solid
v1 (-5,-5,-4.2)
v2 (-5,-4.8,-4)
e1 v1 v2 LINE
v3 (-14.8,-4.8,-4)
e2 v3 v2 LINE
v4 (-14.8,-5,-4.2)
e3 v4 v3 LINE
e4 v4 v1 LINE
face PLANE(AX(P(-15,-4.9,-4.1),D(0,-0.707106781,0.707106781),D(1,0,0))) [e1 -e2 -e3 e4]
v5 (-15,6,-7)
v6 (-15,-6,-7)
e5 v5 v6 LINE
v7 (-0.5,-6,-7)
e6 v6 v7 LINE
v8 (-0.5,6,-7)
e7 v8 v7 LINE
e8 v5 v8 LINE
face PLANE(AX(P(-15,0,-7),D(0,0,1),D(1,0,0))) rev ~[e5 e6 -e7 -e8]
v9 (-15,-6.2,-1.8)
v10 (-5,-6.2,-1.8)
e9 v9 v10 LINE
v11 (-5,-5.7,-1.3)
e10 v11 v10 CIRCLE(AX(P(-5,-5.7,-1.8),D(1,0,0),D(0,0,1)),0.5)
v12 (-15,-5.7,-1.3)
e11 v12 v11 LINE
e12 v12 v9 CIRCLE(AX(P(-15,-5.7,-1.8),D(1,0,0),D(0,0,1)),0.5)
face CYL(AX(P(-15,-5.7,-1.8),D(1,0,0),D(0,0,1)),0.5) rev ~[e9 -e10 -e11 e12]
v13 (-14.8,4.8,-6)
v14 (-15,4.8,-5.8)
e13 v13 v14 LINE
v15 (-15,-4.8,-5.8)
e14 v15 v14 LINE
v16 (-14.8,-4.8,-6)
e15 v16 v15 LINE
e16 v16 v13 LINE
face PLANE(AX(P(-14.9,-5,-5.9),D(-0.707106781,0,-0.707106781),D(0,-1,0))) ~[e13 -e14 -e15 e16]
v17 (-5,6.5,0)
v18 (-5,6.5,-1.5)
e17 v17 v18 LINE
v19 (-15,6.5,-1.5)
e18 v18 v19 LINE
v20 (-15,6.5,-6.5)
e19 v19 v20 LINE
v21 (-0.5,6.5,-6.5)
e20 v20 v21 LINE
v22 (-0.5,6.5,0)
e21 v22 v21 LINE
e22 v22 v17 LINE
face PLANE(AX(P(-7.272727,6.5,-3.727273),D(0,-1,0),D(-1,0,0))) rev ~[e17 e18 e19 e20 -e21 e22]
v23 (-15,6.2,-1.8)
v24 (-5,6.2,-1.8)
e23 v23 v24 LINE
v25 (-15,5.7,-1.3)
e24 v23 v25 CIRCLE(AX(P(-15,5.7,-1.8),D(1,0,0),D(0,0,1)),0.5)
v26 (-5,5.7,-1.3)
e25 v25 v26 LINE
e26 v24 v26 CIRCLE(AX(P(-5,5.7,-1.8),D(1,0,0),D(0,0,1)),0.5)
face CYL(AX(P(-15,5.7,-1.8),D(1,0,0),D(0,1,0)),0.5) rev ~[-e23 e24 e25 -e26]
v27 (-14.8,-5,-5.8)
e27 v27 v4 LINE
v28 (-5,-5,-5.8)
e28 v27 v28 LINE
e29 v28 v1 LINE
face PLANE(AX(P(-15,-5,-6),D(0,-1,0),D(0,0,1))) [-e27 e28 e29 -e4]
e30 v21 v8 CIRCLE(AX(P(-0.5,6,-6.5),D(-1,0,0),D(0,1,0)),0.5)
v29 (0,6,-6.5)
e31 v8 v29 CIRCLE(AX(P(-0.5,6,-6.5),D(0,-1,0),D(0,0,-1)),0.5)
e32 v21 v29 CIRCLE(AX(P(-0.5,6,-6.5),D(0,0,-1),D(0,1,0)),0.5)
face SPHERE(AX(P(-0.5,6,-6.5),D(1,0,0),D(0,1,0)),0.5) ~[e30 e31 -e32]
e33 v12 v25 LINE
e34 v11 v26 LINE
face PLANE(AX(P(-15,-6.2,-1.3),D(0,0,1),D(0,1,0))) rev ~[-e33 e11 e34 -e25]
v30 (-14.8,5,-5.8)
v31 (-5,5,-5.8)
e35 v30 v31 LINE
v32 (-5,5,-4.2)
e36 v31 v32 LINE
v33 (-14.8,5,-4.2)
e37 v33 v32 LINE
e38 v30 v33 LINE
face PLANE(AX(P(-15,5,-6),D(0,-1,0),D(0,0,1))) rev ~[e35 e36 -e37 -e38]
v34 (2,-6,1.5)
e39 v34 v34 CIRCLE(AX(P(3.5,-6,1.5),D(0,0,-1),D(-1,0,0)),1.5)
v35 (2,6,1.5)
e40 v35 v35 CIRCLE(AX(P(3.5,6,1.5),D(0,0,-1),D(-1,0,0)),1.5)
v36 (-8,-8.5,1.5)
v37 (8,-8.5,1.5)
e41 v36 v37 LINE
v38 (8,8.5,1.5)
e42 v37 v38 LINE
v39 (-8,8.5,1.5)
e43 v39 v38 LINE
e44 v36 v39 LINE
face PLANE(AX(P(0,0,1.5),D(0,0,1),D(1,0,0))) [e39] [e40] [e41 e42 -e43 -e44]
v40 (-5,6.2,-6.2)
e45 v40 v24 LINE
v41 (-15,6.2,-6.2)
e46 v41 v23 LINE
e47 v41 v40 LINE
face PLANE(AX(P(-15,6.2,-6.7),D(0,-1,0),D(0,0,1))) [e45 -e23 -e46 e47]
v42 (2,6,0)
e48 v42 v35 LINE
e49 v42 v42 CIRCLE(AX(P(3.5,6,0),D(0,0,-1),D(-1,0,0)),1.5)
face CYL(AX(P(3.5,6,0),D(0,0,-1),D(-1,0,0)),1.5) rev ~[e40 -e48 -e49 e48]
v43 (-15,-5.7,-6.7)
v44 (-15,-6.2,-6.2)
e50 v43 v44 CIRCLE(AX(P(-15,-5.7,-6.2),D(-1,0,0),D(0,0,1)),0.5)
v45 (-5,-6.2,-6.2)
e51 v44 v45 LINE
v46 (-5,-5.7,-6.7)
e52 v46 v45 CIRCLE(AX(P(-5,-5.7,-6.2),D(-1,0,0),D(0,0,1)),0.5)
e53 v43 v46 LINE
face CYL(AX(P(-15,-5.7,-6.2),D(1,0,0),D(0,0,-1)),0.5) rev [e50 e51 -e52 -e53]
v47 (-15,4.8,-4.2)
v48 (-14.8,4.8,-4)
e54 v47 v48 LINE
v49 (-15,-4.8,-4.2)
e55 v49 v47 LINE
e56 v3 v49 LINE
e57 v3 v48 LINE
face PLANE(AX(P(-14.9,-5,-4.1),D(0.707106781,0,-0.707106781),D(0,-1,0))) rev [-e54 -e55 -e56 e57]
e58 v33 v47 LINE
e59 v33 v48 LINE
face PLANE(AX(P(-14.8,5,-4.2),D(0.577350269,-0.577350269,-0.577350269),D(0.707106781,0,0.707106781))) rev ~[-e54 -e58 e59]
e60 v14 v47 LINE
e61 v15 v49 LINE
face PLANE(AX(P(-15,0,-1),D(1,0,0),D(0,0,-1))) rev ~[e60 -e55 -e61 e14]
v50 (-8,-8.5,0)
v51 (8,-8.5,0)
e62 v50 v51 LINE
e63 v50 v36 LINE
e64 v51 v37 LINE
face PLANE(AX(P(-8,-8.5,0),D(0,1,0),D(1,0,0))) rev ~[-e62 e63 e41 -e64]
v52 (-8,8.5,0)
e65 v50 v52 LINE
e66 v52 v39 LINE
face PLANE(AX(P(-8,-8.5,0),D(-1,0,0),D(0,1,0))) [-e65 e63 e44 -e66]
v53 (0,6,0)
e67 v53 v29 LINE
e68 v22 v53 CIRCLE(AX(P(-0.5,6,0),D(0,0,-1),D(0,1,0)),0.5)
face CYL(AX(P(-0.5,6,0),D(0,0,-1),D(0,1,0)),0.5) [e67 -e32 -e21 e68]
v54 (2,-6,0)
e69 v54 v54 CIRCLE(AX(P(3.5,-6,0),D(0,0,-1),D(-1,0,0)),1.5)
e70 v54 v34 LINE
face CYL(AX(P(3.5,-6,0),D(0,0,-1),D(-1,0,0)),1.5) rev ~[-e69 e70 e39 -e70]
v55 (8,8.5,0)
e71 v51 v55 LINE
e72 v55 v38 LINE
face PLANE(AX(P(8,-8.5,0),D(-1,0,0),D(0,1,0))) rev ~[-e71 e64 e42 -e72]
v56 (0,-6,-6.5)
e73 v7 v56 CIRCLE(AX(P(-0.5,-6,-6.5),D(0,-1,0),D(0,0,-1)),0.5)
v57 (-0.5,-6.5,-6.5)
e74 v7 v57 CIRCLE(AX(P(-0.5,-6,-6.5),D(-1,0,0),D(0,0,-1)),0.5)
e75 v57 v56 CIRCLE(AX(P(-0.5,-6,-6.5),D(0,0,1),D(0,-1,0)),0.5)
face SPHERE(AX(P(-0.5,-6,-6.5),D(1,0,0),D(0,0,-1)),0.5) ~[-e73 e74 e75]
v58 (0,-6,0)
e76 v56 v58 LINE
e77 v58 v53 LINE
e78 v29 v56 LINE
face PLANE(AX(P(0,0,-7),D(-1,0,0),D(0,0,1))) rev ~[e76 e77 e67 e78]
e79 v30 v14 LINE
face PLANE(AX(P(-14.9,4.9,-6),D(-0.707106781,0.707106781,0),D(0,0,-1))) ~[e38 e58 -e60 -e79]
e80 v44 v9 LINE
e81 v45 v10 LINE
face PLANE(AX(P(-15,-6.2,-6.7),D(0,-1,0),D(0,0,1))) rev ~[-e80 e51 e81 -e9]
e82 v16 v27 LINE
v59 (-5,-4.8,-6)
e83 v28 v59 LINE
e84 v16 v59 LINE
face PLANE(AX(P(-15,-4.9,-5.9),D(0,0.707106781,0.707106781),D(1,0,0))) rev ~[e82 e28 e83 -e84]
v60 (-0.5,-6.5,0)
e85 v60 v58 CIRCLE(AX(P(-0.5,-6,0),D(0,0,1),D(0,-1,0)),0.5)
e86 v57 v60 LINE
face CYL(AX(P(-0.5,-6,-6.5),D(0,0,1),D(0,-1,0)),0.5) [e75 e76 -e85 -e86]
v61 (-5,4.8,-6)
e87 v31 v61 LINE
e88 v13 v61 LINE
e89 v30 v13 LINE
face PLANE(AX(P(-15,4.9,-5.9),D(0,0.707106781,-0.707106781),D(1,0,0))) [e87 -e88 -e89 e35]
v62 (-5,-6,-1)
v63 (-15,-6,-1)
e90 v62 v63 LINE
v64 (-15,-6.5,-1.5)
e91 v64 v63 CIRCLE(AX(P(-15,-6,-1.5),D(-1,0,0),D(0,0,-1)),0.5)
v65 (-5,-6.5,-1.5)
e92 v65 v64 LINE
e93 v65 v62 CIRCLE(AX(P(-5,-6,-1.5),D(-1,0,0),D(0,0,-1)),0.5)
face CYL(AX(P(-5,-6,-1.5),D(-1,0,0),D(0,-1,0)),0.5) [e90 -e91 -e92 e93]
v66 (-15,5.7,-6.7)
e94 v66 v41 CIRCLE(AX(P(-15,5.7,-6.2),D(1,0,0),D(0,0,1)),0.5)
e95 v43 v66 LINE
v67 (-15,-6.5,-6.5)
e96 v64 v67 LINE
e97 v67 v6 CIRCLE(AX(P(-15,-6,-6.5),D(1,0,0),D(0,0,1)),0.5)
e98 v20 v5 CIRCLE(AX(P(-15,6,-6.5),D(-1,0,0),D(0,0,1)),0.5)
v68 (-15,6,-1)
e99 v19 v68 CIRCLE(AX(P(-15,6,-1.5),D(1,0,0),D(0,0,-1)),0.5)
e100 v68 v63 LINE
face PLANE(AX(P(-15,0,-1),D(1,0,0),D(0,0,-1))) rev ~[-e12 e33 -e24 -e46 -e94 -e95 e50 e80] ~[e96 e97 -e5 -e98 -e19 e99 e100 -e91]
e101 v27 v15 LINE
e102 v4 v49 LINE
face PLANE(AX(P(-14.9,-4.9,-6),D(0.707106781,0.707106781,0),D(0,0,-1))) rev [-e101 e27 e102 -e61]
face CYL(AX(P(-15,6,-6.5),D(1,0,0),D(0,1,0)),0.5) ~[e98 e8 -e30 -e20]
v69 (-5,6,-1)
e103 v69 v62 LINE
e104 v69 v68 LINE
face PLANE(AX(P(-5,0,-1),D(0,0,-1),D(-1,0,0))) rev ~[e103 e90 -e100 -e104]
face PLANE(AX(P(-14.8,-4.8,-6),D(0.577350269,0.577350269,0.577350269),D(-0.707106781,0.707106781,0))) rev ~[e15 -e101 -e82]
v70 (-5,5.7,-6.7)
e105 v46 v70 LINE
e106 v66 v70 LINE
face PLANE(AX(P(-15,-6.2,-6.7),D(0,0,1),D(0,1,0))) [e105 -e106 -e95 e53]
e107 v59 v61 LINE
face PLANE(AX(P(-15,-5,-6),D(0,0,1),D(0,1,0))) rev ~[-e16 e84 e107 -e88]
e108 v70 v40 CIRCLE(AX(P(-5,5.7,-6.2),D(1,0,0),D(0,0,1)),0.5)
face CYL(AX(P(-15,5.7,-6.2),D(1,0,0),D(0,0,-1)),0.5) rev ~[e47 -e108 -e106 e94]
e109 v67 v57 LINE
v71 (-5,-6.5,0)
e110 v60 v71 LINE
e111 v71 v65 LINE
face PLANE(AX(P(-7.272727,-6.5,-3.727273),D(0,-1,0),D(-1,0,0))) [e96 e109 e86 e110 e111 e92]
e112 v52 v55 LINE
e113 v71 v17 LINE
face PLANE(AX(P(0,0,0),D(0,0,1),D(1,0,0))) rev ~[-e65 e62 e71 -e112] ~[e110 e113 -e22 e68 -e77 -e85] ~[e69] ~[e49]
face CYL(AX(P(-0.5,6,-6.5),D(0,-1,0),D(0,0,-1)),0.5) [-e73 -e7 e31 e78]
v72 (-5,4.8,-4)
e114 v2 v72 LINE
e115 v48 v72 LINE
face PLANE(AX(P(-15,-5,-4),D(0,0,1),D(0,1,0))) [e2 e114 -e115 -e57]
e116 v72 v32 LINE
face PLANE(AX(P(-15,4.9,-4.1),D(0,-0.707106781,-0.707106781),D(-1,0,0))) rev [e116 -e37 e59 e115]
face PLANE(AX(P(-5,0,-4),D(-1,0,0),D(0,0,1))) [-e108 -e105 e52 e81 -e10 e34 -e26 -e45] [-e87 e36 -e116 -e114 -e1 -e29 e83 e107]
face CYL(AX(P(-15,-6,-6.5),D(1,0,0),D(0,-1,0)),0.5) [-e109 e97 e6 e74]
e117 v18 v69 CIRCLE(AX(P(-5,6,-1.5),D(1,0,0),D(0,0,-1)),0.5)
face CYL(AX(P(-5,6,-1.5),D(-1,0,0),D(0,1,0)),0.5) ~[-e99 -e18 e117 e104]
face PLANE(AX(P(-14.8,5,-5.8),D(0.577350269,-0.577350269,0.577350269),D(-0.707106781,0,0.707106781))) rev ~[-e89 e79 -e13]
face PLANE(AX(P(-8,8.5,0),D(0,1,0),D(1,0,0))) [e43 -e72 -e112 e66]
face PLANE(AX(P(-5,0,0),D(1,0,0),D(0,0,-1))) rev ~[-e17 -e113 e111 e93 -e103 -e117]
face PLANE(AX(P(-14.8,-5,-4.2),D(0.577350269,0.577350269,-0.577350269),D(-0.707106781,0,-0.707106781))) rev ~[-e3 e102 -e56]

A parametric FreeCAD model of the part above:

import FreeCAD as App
import Part
import Sketcher

V = App.Vector


def edges_at(feature, points):
    """Names of the edges that pass closest to the given points."""
    edges = feature.Shape.Edges
    near = lambda p: min(range(len(edges)), key=lambda i: edges[i].distToShape(Part.Vertex(*p))[0])
    return sorted({f"Edge{near(p) + 1}" for p in points})


def add_polygon(sketch, points):
    """Adds a closed chain of lines whose ends are joined by coincident constraints."""
    first, n = sketch.GeometryCount, len(points)
    for a, b in zip(points, points[1:] + points[:1]):
        sketch.addGeometry(Part.LineSegment(App.Vector(*a, 0), App.Vector(*b, 0)), False)
    for i in range(n):
        sketch.addConstraint(Sketcher.Constraint("Coincident", first + i, 2, first + (i + 1) % n, 1))

doc = App.newDocument("Part")
params = doc.addObject("Spreadsheet::Sheet", "Params")
for row, (alias, value) in enumerate([
    ("sketch1_width", "16 mm"),
    ("sketch1_height", "17 mm"),
    ("pad1_length", "1.5 mm"),
    ("sketch2_width", "5 mm"),
    ("sketch2_width2", "15 mm"),
    ("sketch2_height", "1 mm"),
    ("sketch2_height2", "7 mm"),
    ("pad2_length", "13 mm"),
    ("sketch3_width", "10 mm"),
    ("sketch3_height", "2 mm"),
    ("sketch3_width2", "12.4 mm"),
    ("sketch3_height2", "5.4 mm"),
    ("pocket1_length", "10 mm"),
    ("fillet_radius", "0.5 mm"),
    ("fillet2_radius", "0.5 mm"),
    ("chamfer_size", "0.2 mm"),
    ("sketch4_diameter", "3 mm"),
    ("pocket2_length", "10 mm"),
], start=1):
    params.set(f"A{row}", alias)
    params.set(f"B{row}", "=" + value)
    params.setAlias(f"B{row}", alias)

body = doc.addObject("PartDesign::Body", "Body")

# Sketch on XY plane
sketch1 = doc.addObject("Sketcher::SketchObject", "Sketch")
body.addObject(sketch1)
sketch1.AttachmentSupport = (doc.XY_Plane, [""])
sketch1.MapMode = "FlatFace"
add_polygon(sketch1, [(-8, 8), (-8, -8), (8, -8), (8, 8)])  # lines 0-3
sketch1.addConstraint(Sketcher.Constraint("Vertical", 0))
sketch1.addConstraint(Sketcher.Constraint("Horizontal", 1))
sketch1.addConstraint(Sketcher.Constraint("Vertical", 2))
sketch1.addConstraint(Sketcher.Constraint("Horizontal", 3))
sketch1.addConstraint(Sketcher.Constraint("Symmetric", 0, 2, 2, 2, -1, 1))
sketch1.addConstraint(Sketcher.Constraint("DistanceX", 1, 1, 1, 2, 16.0))
sketch1.addConstraint(Sketcher.Constraint("DistanceY", 0, 2, 0, 1, 17.0))
sketch1.setExpression("Constraints[9]", "Params.sketch1_width")
sketch1.setExpression("Constraints[10]", "Params.sketch1_height")
pad1 = doc.addObject("PartDesign::Pad", "Pad")
body.addObject(pad1)
pad1.Profile = sketch1
pad1.setExpression("Length", "Params.pad1_length")

# Sketch on XZ plane
sketch2 = doc.addObject("Sketcher::SketchObject", "Sketch001")
body.addObject(sketch2)
sketch2.AttachmentSupport = (doc.XZ_Plane, [""])
sketch2.MapMode = "FlatFace"
add_polygon(sketch2, [(-5, -1), (-5, 0), (0, 0), (0, -7), (-15, -7), (-15, -1)])  # lines 0-5
sketch2.addConstraint(Sketcher.Constraint("Vertical", 0))
sketch2.addConstraint(Sketcher.Constraint("Horizontal", 1))
sketch2.addConstraint(Sketcher.Constraint("Vertical", 2))
sketch2.addConstraint(Sketcher.Constraint("Horizontal", 3))
sketch2.addConstraint(Sketcher.Constraint("Vertical", 4))
sketch2.addConstraint(Sketcher.Constraint("Horizontal", 5))
sketch2.addConstraint(Sketcher.Constraint("Coincident", 1, 2, -1, 1))
sketch2.addConstraint(Sketcher.Constraint("DistanceX", 1, 1, 1, 2, 5.0))
sketch2.addConstraint(Sketcher.Constraint("DistanceX", 3, 2, 3, 1, 15.0))
sketch2.addConstraint(Sketcher.Constraint("DistanceY", 0, 1, 0, 2, 1.0))
sketch2.addConstraint(Sketcher.Constraint("DistanceY", 2, 2, 2, 1, 7.0))
sketch2.setExpression("Constraints[13]", "Params.sketch2_width")
sketch2.setExpression("Constraints[14]", "Params.sketch2_width2")
sketch2.setExpression("Constraints[15]", "Params.sketch2_height")
sketch2.setExpression("Constraints[16]", "Params.sketch2_height2")
pad2 = doc.addObject("PartDesign::Pad", "Pad001")
body.addObject(pad2)
pad2.Profile = sketch2
pad2.setExpression("Length", "Params.pad2_length")
pad2.Midplane = True

# Sketch on YZ plane
sketch3 = doc.addObject("Sketcher::SketchObject", "Sketch002")
body.addObject(sketch3)
sketch3.AttachmentSupport = (doc.YZ_Plane, [""])
sketch3.MapMode = "FlatFace"
sketch3.AttachmentOffset = App.Placement(V(0, 0, -15), App.Rotation())
add_polygon(sketch3, [(6.2, -6.7), (-6.2, -6.7), (-6.2, -1.3), (6.2, -1.3)])  # lines 0-3
add_polygon(sketch3, [(-5, -4), (-5, -6), (5, -6), (5, -4)])  # lines 4-7
sketch3.addConstraint(Sketcher.Constraint("Horizontal", 0))
sketch3.addConstraint(Sketcher.Constraint("Vertical", 1))
sketch3.addConstraint(Sketcher.Constraint("Horizontal", 2))
sketch3.addConstraint(Sketcher.Constraint("Vertical", 3))
sketch3.addConstraint(Sketcher.Constraint("Vertical", 4))
sketch3.addConstraint(Sketcher.Constraint("Horizontal", 5))
sketch3.addConstraint(Sketcher.Constraint("Vertical", 6))
sketch3.addConstraint(Sketcher.Constraint("Horizontal", 7))
sketch3.addConstraint(Sketcher.Constraint("DistanceX", 5, 1, 5, 2, 10.0))
sketch3.addConstraint(Sketcher.Constraint("DistanceY", 4, 2, 4, 1, 2.0))
sketch3.addConstraint(Sketcher.Constraint("DistanceX", 0, 2, 0, 1, 12.4))
sketch3.addConstraint(Sketcher.Constraint("DistanceY", 1, 1, 1, 2, 5.4))
sketch3.addConstraint(Sketcher.Constraint("DistanceX", 4, 2, -1, 1, 5.0))
sketch3.addConstraint(Sketcher.Constraint("DistanceY", 4, 2, -1, 1, 6.0))
sketch3.addConstraint(Sketcher.Constraint("DistanceX", 0, 2, -1, 1, 6.2))
sketch3.addConstraint(Sketcher.Constraint("DistanceY", 0, 2, -1, 1, 6.7))
sketch3.setExpression("Constraints[16]", "Params.sketch3_width")
sketch3.setExpression("Constraints[17]", "Params.sketch3_height")
sketch3.setExpression("Constraints[18]", "Params.sketch3_width2")
sketch3.setExpression("Constraints[19]", "Params.sketch3_height2")
pocket1 = doc.addObject("PartDesign::Pocket", "Pocket")
body.addObject(pocket1)
pocket1.Profile = sketch3
pocket1.setExpression("Length", "Params.pocket1_length")
pocket1.Reversed = True
doc.recompute()

fillet = doc.addObject("PartDesign::Fillet", "Fillet")
body.addObject(fillet)
fillet.Base = (pocket1, edges_at(pocket1, [
    (-7.5, -6.5, -7),
    (-10, -6.5, -1),
    (-7.5, 6.5, -7),
    (-10, 6.5, -1),
    (-10, 6.2, -6.7),
    (-10, 6.2, -1.3),
    (-10, -6.2, -1.3),
    (-10, -6.2, -6.7),
]))
fillet.setExpression("Radius", "Params.fillet_radius")
doc.recompute()

fillet2 = doc.addObject("PartDesign::Fillet", "Fillet001")
body.addObject(fillet2)
fillet2.Base = (fillet, edges_at(fillet, [
    (0, -6.5, -3.25),
    (0, 6.5, -3.25),
    (0, 0, -7),
    (0, 6.354, -6.854),
    (0, -6.354, -6.854),
]))
fillet2.setExpression("Radius", "Params.fillet2_radius")
doc.recompute()

chamfer = doc.addObject("PartDesign::Chamfer", "Chamfer")
body.addObject(chamfer)
chamfer.Base = (fillet2, edges_at(fillet2, [
    (-15, 0, -4),
    (-10, -5, -4),
    (-15, -5, -5),
    (-10, -5, -6),
    (-15, 0, -6),
    (-10, 5, -6),
    (-15, 5, -5),
    (-10, 5, -4),
]))
chamfer.setExpression("Size", "Params.chamfer_size")

# Sketch on XY plane
sketch4 = doc.addObject("Sketcher::SketchObject", "Sketch003")
body.addObject(sketch4)
sketch4.AttachmentSupport = (doc.XY_Plane, [""])
sketch4.MapMode = "FlatFace"
sketch4.addGeometry(Part.Circle(V(3.5, 6, 0), V(0, 0, 1), 1.5), False)
sketch4.addGeometry(Part.Circle(V(3.5, -6, 0), V(0, 0, 1), 1.5), False)
sketch4.addConstraint(Sketcher.Constraint("Equal", 0, 1))
sketch4.addConstraint(Sketcher.Constraint("Symmetric", 0, 3, 1, 3, -1))
sketch4.addConstraint(Sketcher.Constraint("Diameter", 0, 3.0))
sketch4.addConstraint(Sketcher.Constraint("DistanceY", -1, 1, 0, 3, 6.0))
sketch4.addConstraint(Sketcher.Constraint("DistanceX", -1, 1, 0, 3, 3.5))
sketch4.setExpression("Constraints[2]", "Params.sketch4_diameter")
pocket2 = doc.addObject("PartDesign::Pocket", "Pocket001")
body.addObject(pocket2)
pocket2.Profile = sketch4
pocket2.setExpression("Length", "Params.pocket2_length")
pocket2.Reversed = True

doc.recompute()
